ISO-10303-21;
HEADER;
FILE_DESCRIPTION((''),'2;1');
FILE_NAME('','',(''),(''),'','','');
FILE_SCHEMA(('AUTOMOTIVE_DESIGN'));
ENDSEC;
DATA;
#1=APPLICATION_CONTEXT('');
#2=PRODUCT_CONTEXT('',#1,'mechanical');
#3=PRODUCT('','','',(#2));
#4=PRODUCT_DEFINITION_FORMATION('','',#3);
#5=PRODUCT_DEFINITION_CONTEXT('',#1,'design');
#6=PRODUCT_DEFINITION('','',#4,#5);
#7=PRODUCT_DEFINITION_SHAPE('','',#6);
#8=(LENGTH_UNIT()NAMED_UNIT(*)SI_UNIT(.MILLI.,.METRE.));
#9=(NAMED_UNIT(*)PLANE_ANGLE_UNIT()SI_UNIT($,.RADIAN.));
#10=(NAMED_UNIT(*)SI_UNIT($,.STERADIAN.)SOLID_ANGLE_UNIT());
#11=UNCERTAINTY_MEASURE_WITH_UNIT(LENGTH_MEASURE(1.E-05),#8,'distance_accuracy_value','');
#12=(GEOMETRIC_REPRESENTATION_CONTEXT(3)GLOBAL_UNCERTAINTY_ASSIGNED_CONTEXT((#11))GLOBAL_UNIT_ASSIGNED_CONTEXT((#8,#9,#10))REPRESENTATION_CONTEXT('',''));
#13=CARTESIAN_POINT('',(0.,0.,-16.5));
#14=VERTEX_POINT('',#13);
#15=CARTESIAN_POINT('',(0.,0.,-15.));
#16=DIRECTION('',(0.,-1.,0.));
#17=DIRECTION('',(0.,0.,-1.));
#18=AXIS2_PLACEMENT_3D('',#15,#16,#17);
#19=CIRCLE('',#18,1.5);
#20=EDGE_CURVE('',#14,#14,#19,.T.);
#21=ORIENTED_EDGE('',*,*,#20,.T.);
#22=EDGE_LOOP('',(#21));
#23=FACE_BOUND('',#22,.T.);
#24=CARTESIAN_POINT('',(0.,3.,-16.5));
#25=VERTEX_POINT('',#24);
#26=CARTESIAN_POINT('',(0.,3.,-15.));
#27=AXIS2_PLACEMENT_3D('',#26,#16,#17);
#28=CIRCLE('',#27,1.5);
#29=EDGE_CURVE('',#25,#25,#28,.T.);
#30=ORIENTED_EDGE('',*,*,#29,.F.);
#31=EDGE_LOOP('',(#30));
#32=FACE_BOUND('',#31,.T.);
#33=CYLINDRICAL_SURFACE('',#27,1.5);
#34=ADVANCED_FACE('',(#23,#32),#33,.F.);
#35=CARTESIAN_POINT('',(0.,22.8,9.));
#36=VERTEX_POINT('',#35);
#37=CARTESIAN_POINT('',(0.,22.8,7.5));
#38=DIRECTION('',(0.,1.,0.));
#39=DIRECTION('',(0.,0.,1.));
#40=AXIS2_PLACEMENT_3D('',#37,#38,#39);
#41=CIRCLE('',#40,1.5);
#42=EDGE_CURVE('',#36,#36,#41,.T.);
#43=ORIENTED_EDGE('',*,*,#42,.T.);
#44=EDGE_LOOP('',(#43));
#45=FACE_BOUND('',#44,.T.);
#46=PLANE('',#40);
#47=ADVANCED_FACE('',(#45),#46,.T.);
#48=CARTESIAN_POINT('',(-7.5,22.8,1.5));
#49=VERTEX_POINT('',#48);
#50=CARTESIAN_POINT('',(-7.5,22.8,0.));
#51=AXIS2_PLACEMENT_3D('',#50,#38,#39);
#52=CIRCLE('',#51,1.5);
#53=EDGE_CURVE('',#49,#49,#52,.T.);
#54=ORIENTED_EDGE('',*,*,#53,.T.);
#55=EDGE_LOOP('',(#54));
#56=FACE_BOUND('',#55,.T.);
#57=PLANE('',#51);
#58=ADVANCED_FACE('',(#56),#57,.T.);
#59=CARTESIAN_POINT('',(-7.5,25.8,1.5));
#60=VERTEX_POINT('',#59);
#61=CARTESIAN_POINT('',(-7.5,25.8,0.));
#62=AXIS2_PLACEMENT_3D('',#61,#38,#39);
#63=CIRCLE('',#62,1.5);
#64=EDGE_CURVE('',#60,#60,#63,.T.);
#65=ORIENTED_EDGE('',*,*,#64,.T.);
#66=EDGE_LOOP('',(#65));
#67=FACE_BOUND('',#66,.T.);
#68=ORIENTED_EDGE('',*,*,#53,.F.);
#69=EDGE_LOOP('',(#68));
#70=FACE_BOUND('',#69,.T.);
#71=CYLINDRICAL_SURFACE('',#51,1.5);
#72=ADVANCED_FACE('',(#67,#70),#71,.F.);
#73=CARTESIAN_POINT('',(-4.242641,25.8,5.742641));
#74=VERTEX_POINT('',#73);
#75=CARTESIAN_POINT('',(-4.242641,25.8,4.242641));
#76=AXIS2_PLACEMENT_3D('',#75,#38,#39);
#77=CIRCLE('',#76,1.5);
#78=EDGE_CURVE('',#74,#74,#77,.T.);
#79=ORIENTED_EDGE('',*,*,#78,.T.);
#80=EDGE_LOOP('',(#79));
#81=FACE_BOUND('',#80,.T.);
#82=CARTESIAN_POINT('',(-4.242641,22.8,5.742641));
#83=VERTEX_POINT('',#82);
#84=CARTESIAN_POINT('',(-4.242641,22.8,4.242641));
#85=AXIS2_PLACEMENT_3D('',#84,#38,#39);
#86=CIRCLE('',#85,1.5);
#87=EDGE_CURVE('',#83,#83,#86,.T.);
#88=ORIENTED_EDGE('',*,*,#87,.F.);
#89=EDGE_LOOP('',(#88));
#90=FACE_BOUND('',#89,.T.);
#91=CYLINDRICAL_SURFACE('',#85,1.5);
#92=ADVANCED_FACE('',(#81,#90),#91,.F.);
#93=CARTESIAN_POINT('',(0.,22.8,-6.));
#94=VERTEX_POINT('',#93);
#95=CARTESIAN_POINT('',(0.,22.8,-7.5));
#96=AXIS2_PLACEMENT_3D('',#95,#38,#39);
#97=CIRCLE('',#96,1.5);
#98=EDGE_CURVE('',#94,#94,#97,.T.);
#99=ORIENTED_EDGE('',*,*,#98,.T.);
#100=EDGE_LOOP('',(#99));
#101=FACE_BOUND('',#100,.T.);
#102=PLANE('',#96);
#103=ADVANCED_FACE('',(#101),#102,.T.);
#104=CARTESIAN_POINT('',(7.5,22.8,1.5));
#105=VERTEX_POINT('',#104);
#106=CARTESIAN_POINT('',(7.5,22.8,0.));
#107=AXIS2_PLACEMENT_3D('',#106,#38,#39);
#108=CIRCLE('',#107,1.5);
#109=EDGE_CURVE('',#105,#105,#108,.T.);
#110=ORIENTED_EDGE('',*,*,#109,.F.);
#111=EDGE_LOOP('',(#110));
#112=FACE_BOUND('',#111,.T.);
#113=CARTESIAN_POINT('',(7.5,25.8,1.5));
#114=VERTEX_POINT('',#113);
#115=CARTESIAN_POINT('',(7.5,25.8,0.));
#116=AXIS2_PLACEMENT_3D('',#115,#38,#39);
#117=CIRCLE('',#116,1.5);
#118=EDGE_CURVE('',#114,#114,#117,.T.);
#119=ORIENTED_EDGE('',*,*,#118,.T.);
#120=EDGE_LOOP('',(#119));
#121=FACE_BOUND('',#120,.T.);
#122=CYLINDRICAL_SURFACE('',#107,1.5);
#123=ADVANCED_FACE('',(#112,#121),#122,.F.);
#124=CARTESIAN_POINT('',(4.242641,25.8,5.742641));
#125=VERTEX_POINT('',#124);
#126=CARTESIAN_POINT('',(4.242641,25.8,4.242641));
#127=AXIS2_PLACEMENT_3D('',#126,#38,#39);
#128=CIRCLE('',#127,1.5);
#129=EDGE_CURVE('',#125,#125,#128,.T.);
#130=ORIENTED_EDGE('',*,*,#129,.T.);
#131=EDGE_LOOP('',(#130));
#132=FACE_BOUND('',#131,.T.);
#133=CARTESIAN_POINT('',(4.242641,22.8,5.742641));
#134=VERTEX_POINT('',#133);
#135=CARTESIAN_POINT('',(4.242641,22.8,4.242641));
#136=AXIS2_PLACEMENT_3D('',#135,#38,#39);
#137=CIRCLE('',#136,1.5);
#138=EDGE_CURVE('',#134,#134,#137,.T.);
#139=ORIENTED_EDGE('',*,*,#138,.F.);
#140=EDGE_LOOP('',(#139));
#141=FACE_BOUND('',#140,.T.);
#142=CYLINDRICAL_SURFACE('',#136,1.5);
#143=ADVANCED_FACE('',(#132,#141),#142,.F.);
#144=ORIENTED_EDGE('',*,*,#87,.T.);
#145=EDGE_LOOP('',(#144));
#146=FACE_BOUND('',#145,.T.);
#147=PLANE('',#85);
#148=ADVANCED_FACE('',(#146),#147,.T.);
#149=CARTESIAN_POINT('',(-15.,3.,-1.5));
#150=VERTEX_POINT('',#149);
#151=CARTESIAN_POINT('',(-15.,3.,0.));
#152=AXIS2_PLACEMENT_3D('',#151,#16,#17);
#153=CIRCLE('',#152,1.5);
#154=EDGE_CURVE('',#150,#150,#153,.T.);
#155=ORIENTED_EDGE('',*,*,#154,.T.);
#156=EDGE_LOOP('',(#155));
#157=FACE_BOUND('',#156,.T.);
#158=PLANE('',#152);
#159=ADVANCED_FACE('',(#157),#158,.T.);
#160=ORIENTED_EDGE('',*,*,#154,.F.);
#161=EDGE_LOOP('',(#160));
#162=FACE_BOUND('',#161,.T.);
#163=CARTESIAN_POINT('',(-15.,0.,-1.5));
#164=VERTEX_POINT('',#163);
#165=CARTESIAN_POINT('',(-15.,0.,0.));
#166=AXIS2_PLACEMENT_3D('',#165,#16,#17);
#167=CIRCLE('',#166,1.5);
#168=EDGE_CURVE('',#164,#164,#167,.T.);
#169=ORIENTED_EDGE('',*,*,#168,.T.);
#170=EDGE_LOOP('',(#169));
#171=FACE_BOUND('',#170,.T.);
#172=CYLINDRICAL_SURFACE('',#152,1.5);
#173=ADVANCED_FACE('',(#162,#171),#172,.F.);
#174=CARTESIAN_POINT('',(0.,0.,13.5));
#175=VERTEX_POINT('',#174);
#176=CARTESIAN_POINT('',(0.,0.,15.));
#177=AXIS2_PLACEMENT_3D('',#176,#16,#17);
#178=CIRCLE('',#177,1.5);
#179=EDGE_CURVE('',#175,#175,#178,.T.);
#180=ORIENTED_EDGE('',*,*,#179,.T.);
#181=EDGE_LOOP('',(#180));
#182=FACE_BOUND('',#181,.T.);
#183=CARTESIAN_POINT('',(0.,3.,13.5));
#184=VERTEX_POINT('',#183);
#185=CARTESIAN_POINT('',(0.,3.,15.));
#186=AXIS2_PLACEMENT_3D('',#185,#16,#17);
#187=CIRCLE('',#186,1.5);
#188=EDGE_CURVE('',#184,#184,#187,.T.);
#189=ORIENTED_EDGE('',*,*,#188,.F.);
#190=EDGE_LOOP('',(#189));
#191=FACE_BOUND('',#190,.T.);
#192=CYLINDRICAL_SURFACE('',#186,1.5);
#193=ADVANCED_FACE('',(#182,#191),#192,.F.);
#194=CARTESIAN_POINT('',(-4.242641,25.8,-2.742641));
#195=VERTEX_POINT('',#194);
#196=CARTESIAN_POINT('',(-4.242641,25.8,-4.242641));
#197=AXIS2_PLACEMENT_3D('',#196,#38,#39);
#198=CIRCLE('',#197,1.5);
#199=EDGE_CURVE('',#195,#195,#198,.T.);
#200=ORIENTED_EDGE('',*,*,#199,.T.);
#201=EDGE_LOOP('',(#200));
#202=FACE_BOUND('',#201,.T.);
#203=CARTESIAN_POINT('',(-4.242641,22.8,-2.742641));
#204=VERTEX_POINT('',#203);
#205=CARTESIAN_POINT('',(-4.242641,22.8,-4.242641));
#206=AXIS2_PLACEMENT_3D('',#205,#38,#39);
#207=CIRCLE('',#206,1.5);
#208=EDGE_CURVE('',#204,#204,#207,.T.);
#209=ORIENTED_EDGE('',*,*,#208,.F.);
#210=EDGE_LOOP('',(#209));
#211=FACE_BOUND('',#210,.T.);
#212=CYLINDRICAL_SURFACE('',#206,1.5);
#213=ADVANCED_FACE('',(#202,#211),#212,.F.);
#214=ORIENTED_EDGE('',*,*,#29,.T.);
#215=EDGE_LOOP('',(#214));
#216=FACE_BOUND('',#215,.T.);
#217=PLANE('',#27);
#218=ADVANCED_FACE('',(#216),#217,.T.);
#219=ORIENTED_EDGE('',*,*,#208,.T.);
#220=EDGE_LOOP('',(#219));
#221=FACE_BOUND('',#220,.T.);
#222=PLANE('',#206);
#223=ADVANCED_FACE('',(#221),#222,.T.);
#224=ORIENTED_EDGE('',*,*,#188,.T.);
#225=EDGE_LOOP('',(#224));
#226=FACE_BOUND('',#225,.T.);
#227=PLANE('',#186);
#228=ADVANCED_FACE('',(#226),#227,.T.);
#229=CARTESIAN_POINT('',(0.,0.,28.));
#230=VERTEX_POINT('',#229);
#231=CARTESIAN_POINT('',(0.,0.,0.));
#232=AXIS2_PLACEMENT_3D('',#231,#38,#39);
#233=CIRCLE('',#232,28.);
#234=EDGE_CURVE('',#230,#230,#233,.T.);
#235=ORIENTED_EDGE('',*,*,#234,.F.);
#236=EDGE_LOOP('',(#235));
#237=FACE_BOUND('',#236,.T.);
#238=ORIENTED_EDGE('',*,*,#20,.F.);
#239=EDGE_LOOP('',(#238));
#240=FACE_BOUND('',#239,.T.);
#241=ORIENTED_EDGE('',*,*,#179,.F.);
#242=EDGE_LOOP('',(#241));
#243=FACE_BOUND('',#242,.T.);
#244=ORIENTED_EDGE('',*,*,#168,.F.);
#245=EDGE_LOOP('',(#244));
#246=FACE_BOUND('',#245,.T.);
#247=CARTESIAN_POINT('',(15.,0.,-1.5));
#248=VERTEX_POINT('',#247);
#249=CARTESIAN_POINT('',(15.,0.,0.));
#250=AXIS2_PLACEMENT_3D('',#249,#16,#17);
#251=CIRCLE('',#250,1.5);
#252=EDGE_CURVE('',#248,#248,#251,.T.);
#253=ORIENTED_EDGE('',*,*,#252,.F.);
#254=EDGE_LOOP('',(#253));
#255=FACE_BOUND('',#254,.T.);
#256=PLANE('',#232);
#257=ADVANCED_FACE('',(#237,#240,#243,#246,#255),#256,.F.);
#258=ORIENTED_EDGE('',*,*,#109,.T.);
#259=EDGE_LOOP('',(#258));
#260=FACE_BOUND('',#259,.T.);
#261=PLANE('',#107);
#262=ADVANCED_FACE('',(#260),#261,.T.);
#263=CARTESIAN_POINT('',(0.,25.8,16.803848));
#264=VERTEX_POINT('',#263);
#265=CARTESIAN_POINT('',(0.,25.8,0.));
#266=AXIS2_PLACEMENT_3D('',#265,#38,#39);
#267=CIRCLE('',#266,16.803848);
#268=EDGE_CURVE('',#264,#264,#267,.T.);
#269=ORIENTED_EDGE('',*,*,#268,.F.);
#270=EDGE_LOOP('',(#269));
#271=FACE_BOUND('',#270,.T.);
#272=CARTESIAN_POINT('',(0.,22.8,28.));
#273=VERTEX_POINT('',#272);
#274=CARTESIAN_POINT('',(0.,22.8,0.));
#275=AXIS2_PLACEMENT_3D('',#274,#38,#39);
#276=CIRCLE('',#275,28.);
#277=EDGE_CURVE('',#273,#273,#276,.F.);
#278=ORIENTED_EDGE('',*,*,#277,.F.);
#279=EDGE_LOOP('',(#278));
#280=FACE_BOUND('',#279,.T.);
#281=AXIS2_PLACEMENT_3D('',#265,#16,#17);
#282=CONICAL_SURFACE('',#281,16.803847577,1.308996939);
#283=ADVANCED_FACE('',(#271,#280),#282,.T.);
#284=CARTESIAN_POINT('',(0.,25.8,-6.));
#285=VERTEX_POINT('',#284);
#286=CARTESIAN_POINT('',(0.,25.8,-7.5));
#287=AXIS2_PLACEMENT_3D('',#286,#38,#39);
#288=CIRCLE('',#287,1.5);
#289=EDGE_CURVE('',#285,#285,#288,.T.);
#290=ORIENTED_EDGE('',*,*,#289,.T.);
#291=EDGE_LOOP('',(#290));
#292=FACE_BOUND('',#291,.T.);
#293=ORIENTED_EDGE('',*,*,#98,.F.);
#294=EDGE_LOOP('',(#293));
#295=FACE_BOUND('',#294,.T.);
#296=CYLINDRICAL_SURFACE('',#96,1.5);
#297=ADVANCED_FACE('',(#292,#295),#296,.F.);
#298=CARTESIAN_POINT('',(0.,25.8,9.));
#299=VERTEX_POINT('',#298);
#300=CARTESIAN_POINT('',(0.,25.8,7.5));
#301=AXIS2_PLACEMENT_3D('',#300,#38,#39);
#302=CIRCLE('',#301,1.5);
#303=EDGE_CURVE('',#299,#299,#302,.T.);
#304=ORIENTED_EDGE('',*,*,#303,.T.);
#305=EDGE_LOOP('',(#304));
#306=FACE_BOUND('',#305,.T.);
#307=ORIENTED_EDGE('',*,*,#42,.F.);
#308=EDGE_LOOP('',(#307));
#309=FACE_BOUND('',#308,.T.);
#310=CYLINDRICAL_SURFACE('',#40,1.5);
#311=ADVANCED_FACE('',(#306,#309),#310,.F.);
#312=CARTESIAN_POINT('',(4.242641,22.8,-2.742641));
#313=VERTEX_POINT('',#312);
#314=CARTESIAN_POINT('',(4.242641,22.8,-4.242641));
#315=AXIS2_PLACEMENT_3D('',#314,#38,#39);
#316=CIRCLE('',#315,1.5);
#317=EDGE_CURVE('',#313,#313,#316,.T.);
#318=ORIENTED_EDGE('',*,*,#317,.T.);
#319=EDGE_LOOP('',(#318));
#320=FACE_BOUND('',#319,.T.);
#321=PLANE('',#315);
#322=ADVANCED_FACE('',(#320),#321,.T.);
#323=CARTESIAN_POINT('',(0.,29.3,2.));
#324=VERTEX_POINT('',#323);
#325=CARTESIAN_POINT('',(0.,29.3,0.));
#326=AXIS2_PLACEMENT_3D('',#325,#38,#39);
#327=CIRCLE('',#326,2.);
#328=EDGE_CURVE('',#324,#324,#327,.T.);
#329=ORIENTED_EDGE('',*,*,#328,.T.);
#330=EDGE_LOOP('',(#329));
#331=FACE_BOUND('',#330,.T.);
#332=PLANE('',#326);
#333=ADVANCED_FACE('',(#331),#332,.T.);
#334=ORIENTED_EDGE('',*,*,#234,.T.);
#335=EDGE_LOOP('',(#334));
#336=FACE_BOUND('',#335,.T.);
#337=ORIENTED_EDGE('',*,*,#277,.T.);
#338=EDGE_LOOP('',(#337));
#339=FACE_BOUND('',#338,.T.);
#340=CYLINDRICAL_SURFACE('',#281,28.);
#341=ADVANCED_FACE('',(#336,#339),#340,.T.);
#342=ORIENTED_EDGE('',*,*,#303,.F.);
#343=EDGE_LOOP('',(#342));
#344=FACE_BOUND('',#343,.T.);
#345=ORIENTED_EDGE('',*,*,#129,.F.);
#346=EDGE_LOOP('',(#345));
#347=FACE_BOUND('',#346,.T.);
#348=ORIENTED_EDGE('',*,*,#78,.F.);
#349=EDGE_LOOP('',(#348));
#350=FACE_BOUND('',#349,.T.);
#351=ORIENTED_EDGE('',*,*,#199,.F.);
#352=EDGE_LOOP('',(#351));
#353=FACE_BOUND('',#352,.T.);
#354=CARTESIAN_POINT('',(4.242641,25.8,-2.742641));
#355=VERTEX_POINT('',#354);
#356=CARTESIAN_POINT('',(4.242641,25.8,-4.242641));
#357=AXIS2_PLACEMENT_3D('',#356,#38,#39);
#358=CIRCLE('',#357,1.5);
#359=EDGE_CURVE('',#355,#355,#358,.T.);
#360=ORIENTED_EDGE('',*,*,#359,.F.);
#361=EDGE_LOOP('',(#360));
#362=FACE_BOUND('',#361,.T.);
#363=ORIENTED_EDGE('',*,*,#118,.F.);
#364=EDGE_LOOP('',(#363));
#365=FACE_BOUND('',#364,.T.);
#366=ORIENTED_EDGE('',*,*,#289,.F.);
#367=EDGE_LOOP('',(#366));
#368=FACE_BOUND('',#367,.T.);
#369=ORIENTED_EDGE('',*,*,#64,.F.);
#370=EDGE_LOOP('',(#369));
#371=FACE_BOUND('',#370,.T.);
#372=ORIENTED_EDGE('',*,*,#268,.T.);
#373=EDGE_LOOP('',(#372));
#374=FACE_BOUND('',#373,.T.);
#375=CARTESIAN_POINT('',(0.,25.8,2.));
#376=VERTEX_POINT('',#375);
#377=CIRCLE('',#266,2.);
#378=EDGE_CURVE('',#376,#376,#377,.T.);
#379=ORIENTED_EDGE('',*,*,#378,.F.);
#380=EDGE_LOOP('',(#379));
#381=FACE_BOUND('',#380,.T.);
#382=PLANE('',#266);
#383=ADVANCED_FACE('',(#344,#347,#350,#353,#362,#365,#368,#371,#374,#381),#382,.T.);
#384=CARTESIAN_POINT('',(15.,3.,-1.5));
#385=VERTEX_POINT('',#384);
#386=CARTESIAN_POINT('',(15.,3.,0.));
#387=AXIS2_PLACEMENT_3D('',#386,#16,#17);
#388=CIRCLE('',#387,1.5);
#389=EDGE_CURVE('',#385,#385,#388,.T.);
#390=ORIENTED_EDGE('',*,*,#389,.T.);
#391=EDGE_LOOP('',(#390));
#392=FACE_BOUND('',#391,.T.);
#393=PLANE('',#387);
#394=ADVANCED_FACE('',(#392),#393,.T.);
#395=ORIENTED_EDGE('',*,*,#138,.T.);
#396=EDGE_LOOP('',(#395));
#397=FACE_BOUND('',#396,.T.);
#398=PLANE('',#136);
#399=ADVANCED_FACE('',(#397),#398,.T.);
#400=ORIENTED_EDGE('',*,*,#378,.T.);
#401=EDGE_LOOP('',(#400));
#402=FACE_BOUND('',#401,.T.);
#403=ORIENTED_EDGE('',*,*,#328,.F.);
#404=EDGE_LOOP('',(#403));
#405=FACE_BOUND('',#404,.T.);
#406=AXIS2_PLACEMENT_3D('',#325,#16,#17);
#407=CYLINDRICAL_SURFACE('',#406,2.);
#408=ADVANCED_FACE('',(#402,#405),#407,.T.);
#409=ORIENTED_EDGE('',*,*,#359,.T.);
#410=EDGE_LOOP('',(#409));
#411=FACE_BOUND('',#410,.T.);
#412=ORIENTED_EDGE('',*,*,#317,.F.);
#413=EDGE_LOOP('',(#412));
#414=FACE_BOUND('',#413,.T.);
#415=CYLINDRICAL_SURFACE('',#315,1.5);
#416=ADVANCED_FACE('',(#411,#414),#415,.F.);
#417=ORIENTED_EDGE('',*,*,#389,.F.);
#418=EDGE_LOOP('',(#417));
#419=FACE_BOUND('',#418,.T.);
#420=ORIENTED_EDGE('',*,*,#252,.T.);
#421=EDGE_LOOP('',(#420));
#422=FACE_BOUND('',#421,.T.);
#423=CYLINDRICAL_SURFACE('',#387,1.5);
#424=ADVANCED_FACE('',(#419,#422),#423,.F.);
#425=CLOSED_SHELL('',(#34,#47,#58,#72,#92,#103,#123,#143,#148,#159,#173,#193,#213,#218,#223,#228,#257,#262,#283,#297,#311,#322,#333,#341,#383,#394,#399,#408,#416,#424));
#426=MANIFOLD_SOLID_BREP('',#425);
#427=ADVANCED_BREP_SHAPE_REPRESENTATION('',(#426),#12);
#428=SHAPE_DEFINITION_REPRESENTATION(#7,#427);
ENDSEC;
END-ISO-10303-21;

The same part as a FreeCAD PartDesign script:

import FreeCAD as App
import Part
import Sketcher
Q = App.Units.Quantity


def edges_at(feature, points):
    """Names of the edges that pass closest to the given points."""
    edges = feature.Shape.Edges
    near = lambda p: min(range(len(edges)), key=lambda i: edges[i].distToShape(Part.Vertex(*p))[0])
    return sorted({f"Edge{near(p) + 1}" for p in points})

doc = App.newDocument("Part")
body = doc.addObject("PartDesign::Body", "Body")

# Sketch on XZ plane
sketch1 = body.newObject("Sketcher::SketchObject", "Sketch")
sketch1.AttachmentSupport = (doc.getObject("XZ_Plane"), [""])
sketch1.MapMode = "FlatFace"
sketch1.addGeometry(Part.Circle(App.Vector(0, 0, 0), App.Vector(0, 0, 1), 28), False)
sketch1.addConstraint(Sketcher.Constraint("Coincident", 0, 3, -1, 1))
sketch1.addConstraint(Sketcher.Constraint("Diameter", 0, Q("56 mm")))
pad1 = body.newObject("PartDesign::Pad", "Pad")
pad1.Profile = sketch1
pad1.Length = 25.8
pad1.Reversed = True

# Sketch on XZ plane
sketch2 = body.newObject("Sketcher::SketchObject", "Sketch001")
sketch2.AttachmentSupport = (doc.getObject("XZ_Plane"), [""])
sketch2.MapMode = "FlatFace"
sketch2.AttachmentOffset = App.Placement(App.Vector(0, 0, -25.8), App.Rotation())
sketch2.addGeometry(Part.Circle(App.Vector(0, 0, 0), App.Vector(0, 0, 1), 2), False)
sketch2.addConstraint(Sketcher.Constraint("Coincident", 0, 3, -1, 1))
sketch2.addConstraint(Sketcher.Constraint("Diameter", 0, Q("4 mm")))
pad2 = body.newObject("PartDesign::Pad", "Pad001")
pad2.Profile = sketch2
pad2.Length = 3.5
pad2.Reversed = True

# Sketch on XZ plane
sketch3 = body.newObject("Sketcher::SketchObject", "Sketch002")
sketch3.AttachmentSupport = (doc.getObject("XZ_Plane"), [""])
sketch3.MapMode = "FlatFace"
sketch3.addGeometry(Part.Circle(App.Vector(0, 15, 0), App.Vector(0, 0, 1), 1.5), False)
sketch3.addGeometry(Part.Circle(App.Vector(15, 0, 0), App.Vector(0, 0, 1), 1.5), False)
sketch3.addGeometry(Part.Circle(App.Vector(0, -15, 0), App.Vector(0, 0, 1), 1.5), False)
sketch3.addGeometry(Part.Circle(App.Vector(-15, 0, 0), App.Vector(0, 0, 1), 1.5), False)
sketch3.addConstraint(Sketcher.Constraint("Equal", 0, 1))
sketch3.addConstraint(Sketcher.Constraint("Equal", 1, 2))
sketch3.addConstraint(Sketcher.Constraint("Equal", 2, 3))
sketch3.addConstraint(Sketcher.Constraint("Symmetric", 0, 3, 2, 3, -1, 1))
sketch3.addConstraint(Sketcher.Constraint("Symmetric", 1, 3, 3, 3, -1, 1))
sketch3.addConstraint(Sketcher.Constraint("PointOnObject", 0, 3, -2))
sketch3.addConstraint(Sketcher.Constraint("PointOnObject", 1, 3, -1))
sketch3.addConstraint(Sketcher.Constraint("Diameter", 0, Q("3 mm")))
sketch3.addConstraint(Sketcher.Constraint("DistanceY", -1, 1, 0, 3, Q("15 mm")))
sketch3.addConstraint(Sketcher.Constraint("DistanceX", -1, 1, 1, 3, Q("15 mm")))
pocket1 = body.newObject("PartDesign::Pocket", "Pocket")
pocket1.Profile = sketch3
pocket1.Length = 3

# Sketch on XZ plane
sketch4 = body.newObject("Sketcher::SketchObject", "Sketch003")
sketch4.AttachmentSupport = (doc.getObject("XZ_Plane"), [""])
sketch4.MapMode = "FlatFace"
sketch4.AttachmentOffset = App.Placement(App.Vector(0, 0, -25.8), App.Rotation())
sketch4.addGeometry(Part.Circle(App.Vector(0, -7.5, 0), App.Vector(0, 0, 1), 1.5), False)
sketch4.addGeometry(Part.Circle(App.Vector(7.5, 0, 0), App.Vector(0, 0, 1), 1.5), False)
sketch4.addGeometry(Part.Circle(App.Vector(0, 7.5, 0), App.Vector(0, 0, 1), 1.5), False)
sketch4.addGeometry(Part.Circle(App.Vector(-7.5, 0, 0), App.Vector(0, 0, 1), 1.5), False)
sketch4.addGeometry(Part.Circle(App.Vector(4.242641, -4.242641, 0), App.Vector(0, 0, 1), 1.5), False)
sketch4.addGeometry(Part.Circle(App.Vector(4.242641, 4.242641, 0), App.Vector(0, 0, 1), 1.5), False)
sketch4.addGeometry(Part.Circle(App.Vector(-4.242641, 4.242641, 0), App.Vector(0, 0, 1), 1.5), False)
sketch4.addGeometry(Part.Circle(App.Vector(-4.242641, -4.242641, 0), App.Vector(0, 0, 1), 1.5), False)
sketch4.addConstraint(Sketcher.Constraint("Equal", 0, 1))
sketch4.addConstraint(Sketcher.Constraint("Equal", 1, 2))
sketch4.addConstraint(Sketcher.Constraint("Equal", 2, 3))
sketch4.addConstraint(Sketcher.Constraint("Equal", 3, 4))
sketch4.addConstraint(Sketcher.Constraint("Equal", 4, 5))
sketch4.addConstraint(Sketcher.Constraint("Equal", 5, 6))
sketch4.addConstraint(Sketcher.Constraint("Equal", 6, 7))
sketch4.addConstraint(Sketcher.Constraint("Symmetric", 0, 3, 2, 3, -1, 1))
sketch4.addConstraint(Sketcher.Constraint("Symmetric", 1, 3, 3, 3, -1, 1))
sketch4.addConstraint(Sketcher.Constraint("Symmetric", 4, 3, 6, 3, -1, 1))
sketch4.addConstraint(Sketcher.Constraint("Symmetric", 5, 3, 7, 3, -1, 1))
sketch4.addConstraint(Sketcher.Constraint("Symmetric", 5, 3, 6, 3, -2))
sketch4.addConstraint(Sketcher.Constraint("PointOnObject", 0, 3, -2))
sketch4.addConstraint(Sketcher.Constraint("PointOnObject", 1, 3, -1))
sketch4.addConstraint(Sketcher.Constraint("Diameter", 0, Q("3 mm")))
sketch4.addConstraint(Sketcher.Constraint("DistanceY", 0, 3, 2, 3, Q("15 mm")))
sketch4.addConstraint(Sketcher.Constraint("DistanceX", 3, 3, 1, 3, Q("15 mm")))
sketch4.addConstraint(Sketcher.Constraint("DistanceX", -1, 1, 4, 3, Q("4.242641 mm")))
sketch4.addConstraint(Sketcher.Constraint("DistanceY", 4, 3, -1, 1, Q("4.242641 mm")))
pocket2 = body.newObject("PartDesign::Pocket", "Pocket001")
pocket2.Profile = sketch4
pocket2.Length = 3
pocket2.Reversed = True
doc.recompute()

chamfer = body.newObject("PartDesign::Chamfer", "Chamfer")
chamfer.Base = (pocket2, edges_at(pocket2, [(-28, 25.8, 0)]))
chamfer.ChamferType = "Two distances"
chamfer.Size = 3
chamfer.Size2 = 11.196152

doc.recompute()
